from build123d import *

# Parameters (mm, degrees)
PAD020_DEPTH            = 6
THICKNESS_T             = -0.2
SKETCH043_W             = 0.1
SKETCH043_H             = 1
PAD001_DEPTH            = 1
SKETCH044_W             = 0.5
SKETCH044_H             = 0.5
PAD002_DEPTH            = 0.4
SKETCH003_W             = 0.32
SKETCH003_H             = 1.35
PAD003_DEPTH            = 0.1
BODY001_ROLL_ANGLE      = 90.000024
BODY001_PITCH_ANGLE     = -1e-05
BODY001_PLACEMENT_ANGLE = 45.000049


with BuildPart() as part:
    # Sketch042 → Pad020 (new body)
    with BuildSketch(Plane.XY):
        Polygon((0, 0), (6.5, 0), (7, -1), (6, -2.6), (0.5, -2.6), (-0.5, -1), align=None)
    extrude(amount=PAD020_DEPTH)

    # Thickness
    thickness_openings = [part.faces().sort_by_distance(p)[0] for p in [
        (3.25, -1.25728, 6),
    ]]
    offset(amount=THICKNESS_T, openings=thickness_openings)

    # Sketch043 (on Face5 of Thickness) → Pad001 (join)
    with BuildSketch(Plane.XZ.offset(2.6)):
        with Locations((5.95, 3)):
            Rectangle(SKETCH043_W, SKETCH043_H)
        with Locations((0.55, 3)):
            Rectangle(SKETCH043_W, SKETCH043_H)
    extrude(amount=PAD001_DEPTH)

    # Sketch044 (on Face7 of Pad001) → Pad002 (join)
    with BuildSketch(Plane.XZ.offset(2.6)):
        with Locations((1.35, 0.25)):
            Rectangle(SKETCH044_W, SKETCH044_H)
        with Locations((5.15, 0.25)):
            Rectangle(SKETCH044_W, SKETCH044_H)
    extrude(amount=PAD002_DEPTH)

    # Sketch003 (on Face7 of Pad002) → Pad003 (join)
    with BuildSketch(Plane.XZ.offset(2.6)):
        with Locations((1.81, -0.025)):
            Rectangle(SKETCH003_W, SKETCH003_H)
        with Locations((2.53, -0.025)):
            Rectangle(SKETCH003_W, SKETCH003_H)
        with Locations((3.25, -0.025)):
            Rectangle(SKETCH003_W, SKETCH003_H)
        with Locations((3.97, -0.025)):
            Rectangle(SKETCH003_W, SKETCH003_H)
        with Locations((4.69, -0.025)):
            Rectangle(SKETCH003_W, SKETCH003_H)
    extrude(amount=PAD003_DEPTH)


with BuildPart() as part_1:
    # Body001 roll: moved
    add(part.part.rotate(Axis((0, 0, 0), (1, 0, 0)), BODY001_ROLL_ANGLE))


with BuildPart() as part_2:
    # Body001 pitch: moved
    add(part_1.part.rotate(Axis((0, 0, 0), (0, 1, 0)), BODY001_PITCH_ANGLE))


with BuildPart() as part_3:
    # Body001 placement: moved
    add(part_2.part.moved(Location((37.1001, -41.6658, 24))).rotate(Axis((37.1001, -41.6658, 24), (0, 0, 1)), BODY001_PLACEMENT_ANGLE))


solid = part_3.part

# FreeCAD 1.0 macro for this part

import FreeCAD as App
import Part
import Sketcher
from FreeCAD import Vector


def faces_at(feature, points):
    """Names of the faces that lie closest to the given points."""
    faces = feature.Shape.Faces
    near = lambda p: min(range(len(faces)), key=lambda i: faces[i].distToShape(Part.Vertex(*p))[0])
    return sorted({f"Face{near(p) + 1}" for p in points})

doc = App.newDocument("Part")
body = doc.addObject("PartDesign::Body", "Body")

# Sketch on XY plane
sketch1 = body.newObject("Sketcher::SketchObject", "Sketch")
sketch1.AttachmentSupport = (doc.getObject("XY_Plane"), [""])
sketch1.MapMode = "FlatFace"
sketch1.addGeometry([
    Part.LineSegment(Vector(6.5, 0, 0), Vector(0, 0, 0)),  # 0
    Part.LineSegment(Vector(0, 0, 0), Vector(-0.5, -1, 0)),  # 1
    Part.LineSegment(Vector(-0.5, -1, 0), Vector(0.5, -2.6, 0)),  # 2
    Part.LineSegment(Vector(0.5, -2.6, 0), Vector(6, -2.6, 0)),  # 3
    Part.LineSegment(Vector(6, -2.6, 0), Vector(7, -1, 0)),  # 4
    Part.LineSegment(Vector(7, -1, 0), Vector(6.5, 0, 0)),  # 5
], False)
sketch1.addConstraint([
    Sketcher.Constraint("Coincident", 0, 2, 1, 1),
    Sketcher.Constraint("Coincident", 1, 2, 2, 1),
    Sketcher.Constraint("Coincident", 2, 2, 3, 1),
    Sketcher.Constraint("Coincident", 3, 2, 4, 1),
    Sketcher.Constraint("Coincident", 4, 2, 5, 1),
    Sketcher.Constraint("Coincident", 5, 2, 0, 1),
    Sketcher.Constraint("Horizontal", 0),
    Sketcher.Constraint("Horizontal", 3),
    Sketcher.Constraint("Coincident", 0, 2, -1, 1),
    Sketcher.Constraint("Horizontal", 1, 2, 4, 2),
    Sketcher.Constraint("Equal", 2, 4),
    Sketcher.Constraint("Equal", 1, 5),
    Sketcher.Constraint("DistanceX", 0, 2, 0, 1, 6.5),
    Sketcher.Constraint("DistanceX", 3, 1, 3, 2, 5.5),
    Sketcher.Constraint("DistanceY", 1, 2, -1, 1, 1.0),
    Sketcher.Constraint("DistanceX", -1, 1, 4, 2, 7.0),
    Sketcher.Constraint("DistanceY", 2, 2, -1, 1, 2.6),
])
pad1 = body.newObject("PartDesign::Pad", "Pad")
pad1.Profile = sketch1
pad1.Length = 6
doc.recompute()

thickness = body.newObject("PartDesign::Thickness", "Thickness")
thickness.Base = (pad1, faces_at(pad1, [(3.25, -1.3, 6)]))
thickness.Value = 0.2
thickness.Reversed = True
thickness.Join = "Arc"

# Sketch on XZ plane
sketch2 = body.newObject("Sketcher::SketchObject", "Sketch001")
sketch2.AttachmentSupport = (doc.getObject("XZ_Plane"), [""])
sketch2.MapMode = "FlatFace"
sketch2.AttachmentOffset = App.Placement(Vector(0, 0, 2.6), App.Rotation())
sketch2.addGeometry([
    Part.LineSegment(Vector(5.9, 3.5, 0), Vector(5.9, 2.5, 0)),  # 0
    Part.LineSegment(Vector(5.9, 2.5, 0), Vector(6, 2.5, 0)),  # 1
    Part.LineSegment(Vector(6, 2.5, 0), Vector(6, 3.5, 0)),  # 2
    Part.LineSegment(Vector(6, 3.5, 0), Vector(5.9, 3.5, 0)),  # 3
    Part.LineSegment(Vector(0.5, 3.5, 0), Vector(0.5, 2.5, 0)),  # 4
    Part.LineSegment(Vector(0.5, 2.5, 0), Vector(0.6, 2.5, 0)),  # 5
    Part.LineSegment(Vector(0.6, 2.5, 0), Vector(0.6, 3.5, 0)),  # 6
    Part.LineSegment(Vector(0.6, 3.5, 0), Vector(0.5, 3.5, 0)),  # 7
], False)
sketch2.addConstraint([
    Sketcher.Constraint("Coincident", 0, 2, 1, 1),
    Sketcher.Constraint("Coincident", 1, 2, 2, 1),
    Sketcher.Constraint("Coincident", 2, 2, 3, 1),
    Sketcher.Constraint("Coincident", 3, 2, 0, 1),
    Sketcher.Constraint("Coincident", 4, 2, 5, 1),
    Sketcher.Constraint("Coincident", 5, 2, 6, 1),
    Sketcher.Constraint("Coincident", 6, 2, 7, 1),
    Sketcher.Constraint("Coincident", 7, 2, 4, 1),
    Sketcher.Constraint("Vertical", 0),
    Sketcher.Constraint("Horizontal", 1),
    Sketcher.Constraint("Vertical", 2),
    Sketcher.Constraint("Horizontal", 3),
    Sketcher.Constraint("Vertical", 4),
    Sketcher.Constraint("Horizontal", 5),
    Sketcher.Constraint("Vertical", 6),
    Sketcher.Constraint("Horizontal", 7),
    Sketcher.Constraint("Horizontal", 1, 2, 4, 2),
    Sketcher.Constraint("Horizontal", 3, 2, 6, 2),
    Sketcher.Constraint("Equal", 3, 5),
    Sketcher.Constraint("DistanceY", 0, 2, 0, 1, 1.0),
    Sketcher.Constraint("DistanceX", 1, 1, 1, 2, 0.1),
    Sketcher.Constraint("DistanceX", -1, 1, 1, 2, 6.0),
    Sketcher.Constraint("DistanceY", -1, 1, 0, 2, 2.5),
    Sketcher.Constraint("DistanceX", -1, 1, 4, 2, 0.5),
])
pad2 = body.newObject("PartDesign::Pad", "Pad001")
pad2.Profile = sketch2
pad2.Length = 1

# Sketch on XZ plane
sketch3 = body.newObject("Sketcher::SketchObject", "Sketch002")
sketch3.AttachmentSupport = (doc.getObject("XZ_Plane"), [""])
sketch3.MapMode = "FlatFace"
sketch3.AttachmentOffset = App.Placement(Vector(0, 0, 2.6), App.Rotation())
sketch3.addGeometry([
    Part.LineSegment(Vector(1.1, 0.5, 0), Vector(1.1, 0, 0)),  # 0
    Part.LineSegment(Vector(1.1, 0, 0), Vector(1.6, 0, 0)),  # 1
    Part.LineSegment(Vector(1.6, 0, 0), Vector(1.6, 0.5, 0)),  # 2
    Part.LineSegment(Vector(1.6, 0.5, 0), Vector(1.1, 0.5, 0)),  # 3
    Part.LineSegment(Vector(4.9, 0.5, 0), Vector(4.9, 0, 0)),  # 4
    Part.LineSegment(Vector(4.9, 0, 0), Vector(5.4, 0, 0)),  # 5
    Part.LineSegment(Vector(5.4, 0, 0), Vector(5.4, 0.5, 0)),  # 6
    Part.LineSegment(Vector(5.4, 0.5, 0), Vector(4.9, 0.5, 0)),  # 7
], False)
sketch3.addConstraint([
    Sketcher.Constraint("Coincident", 0, 2, 1, 1),
    Sketcher.Constraint("Coincident", 1, 2, 2, 1),
    Sketcher.Constraint("Coincident", 2, 2, 3, 1),
    Sketcher.Constraint("Coincident", 3, 2, 0, 1),
    Sketcher.Constraint("Coincident", 4, 2, 5, 1),
    Sketcher.Constraint("Coincident", 5, 2, 6, 1),
    Sketcher.Constraint("Coincident", 6, 2, 7, 1),
    Sketcher.Constraint("Coincident", 7, 2, 4, 1),
    Sketcher.Constraint("Vertical", 0),
    Sketcher.Constraint("Horizontal", 1),
    Sketcher.Constraint("Vertical", 2),
    Sketcher.Constraint("Horizontal", 3),
    Sketcher.Constraint("Vertical", 4),
    Sketcher.Constraint("Horizontal", 5),
    Sketcher.Constraint("Vertical", 6),
    Sketcher.Constraint("Horizontal", 7),
    Sketcher.Constraint("PointOnObject", 0, 2, -1),
    Sketcher.Constraint("PointOnObject", 4, 2, -1),
    Sketcher.Constraint("Horizontal", 3, 2, 6, 2),
    Sketcher.Constraint("Equal", 3, 5),
    Sketcher.Constraint("Equal", 7, 0),
    Sketcher.Constraint("DistanceX", 1, 1, 1, 2, 0.5),
    Sketcher.Constraint("DistanceX", -1, 1, 0, 2, 1.1),
    Sketcher.Constraint("DistanceX", -1, 1, 4, 2, 4.9),
])
pad3 = body.newObject("PartDesign::Pad", "Pad002")
pad3.Profile = sketch3
pad3.Length = 0.4

# Sketch on XZ plane
sketch4 = body.newObject("Sketcher::SketchObject", "Sketch003")
sketch4.AttachmentSupport = (doc.getObject("XZ_Plane"), [""])
sketch4.MapMode = "FlatFace"
sketch4.AttachmentOffset = App.Placement(Vector(0, 0, 2.6), App.Rotation())
sketch4.addGeometry([
    Part.LineSegment(Vector(1.65, 0.65, 0), Vector(1.65, -0.7, 0)),  # 0
    Part.LineSegment(Vector(1.65, -0.7, 0), Vector(1.97, -0.7, 0)),  # 1
    Part.LineSegment(Vector(1.97, -0.7, 0), Vector(1.97, 0.65, 0)),  # 2
    Part.LineSegment(Vector(1.97, 0.65, 0), Vector(1.65, 0.65, 0)),  # 3
    Part.LineSegment(Vector(2.37, 0.65, 0), Vector(2.37, -0.7, 0)),  # 4
    Part.LineSegment(Vector(2.37, -0.7, 0), Vector(2.69, -0.7, 0)),  # 5
    Part.LineSegment(Vector(2.69, -0.7, 0), Vector(2.69, 0.65, 0)),  # 6
    Part.LineSegment(Vector(2.69, 0.65, 0), Vector(2.37, 0.65, 0)),  # 7
    Part.LineSegment(Vector(3.09, 0.65, 0), Vector(3.09, -0.7, 0)),  # 8
    Part.LineSegment(Vector(3.09, -0.7, 0), Vector(3.41, -0.7, 0)),  # 9
    Part.LineSegment(Vector(3.41, -0.7, 0), Vector(3.41, 0.65, 0)),  # 10
    Part.LineSegment(Vector(3.41, 0.65, 0), Vector(3.09, 0.65, 0)),  # 11
    Part.LineSegment(Vector(3.81, 0.65, 0), Vector(3.81, -0.7, 0)),  # 12
    Part.LineSegment(Vector(3.81, -0.7, 0), Vector(4.13, -0.7, 0)),  # 13
    Part.LineSegment(Vector(4.13, -0.7, 0), Vector(4.13, 0.65, 0)),  # 14
    Part.LineSegment(Vector(4.13, 0.65, 0), Vector(3.81, 0.65, 0)),  # 15
    Part.LineSegment(Vector(4.53, 0.65, 0), Vector(4.53, -0.7, 0)),  # 16
    Part.LineSegment(Vector(4.53, -0.7, 0), Vector(4.85, -0.7, 0)),  # 17
    Part.LineSegment(Vector(4.85, -0.7, 0), Vector(4.85, 0.65, 0)),  # 18
    Part.LineSegment(Vector(4.85, 0.65, 0), Vector(4.53, 0.65, 0)),  # 19
], False)
sketch4.addConstraint([
    Sketcher.Constraint("Coincident", 0, 2, 1, 1),
    Sketcher.Constraint("Coincident", 1, 2, 2, 1),
    Sketcher.Constraint("Coincident", 2, 2, 3, 1),
    Sketcher.Constraint("Coincident", 3, 2, 0, 1),
    Sketcher.Constraint("Coincident", 4, 2, 5, 1),
    Sketcher.Constraint("Coincident", 5, 2, 6, 1),
    Sketcher.Constraint("Coincident", 6, 2, 7, 1),
    Sketcher.Constraint("Coincident", 7, 2, 4, 1),
    Sketcher.Constraint("Coincident", 8, 2, 9, 1),
    Sketcher.Constraint("Coincident", 9, 2, 10, 1),
    Sketcher.Constraint("Coincident", 10, 2, 11, 1),
    Sketcher.Constraint("Coincident", 11, 2, 8, 1),
    Sketcher.Constraint("Coincident", 12, 2, 13, 1),
    Sketcher.Constraint("Coincident", 13, 2, 14, 1),
    Sketcher.Constraint("Coincident", 14, 2, 15, 1),
    Sketcher.Constraint("Coincident", 15, 2, 12, 1),
    Sketcher.Constraint("Coincident", 16, 2, 17, 1),
    Sketcher.Constraint("Coincident", 17, 2, 18, 1),
    Sketcher.Constraint("Coincident", 18, 2, 19, 1),
    Sketcher.Constraint("Coincident", 19, 2, 16, 1),
    Sketcher.Constraint("Vertical", 0),
    Sketcher.Constraint("Horizontal", 1),
    Sketcher.Constraint("Vertical", 2),
    Sketcher.Constraint("Horizontal", 3),
    Sketcher.Constraint("Vertical", 4),
    Sketcher.Constraint("Horizontal", 5),
    Sketcher.Constraint("Vertical", 6),
    Sketcher.Constraint("Horizontal", 7),
    Sketcher.Constraint("Vertical", 8),
    Sketcher.Constraint("Horizontal", 9),
    Sketcher.Constraint("Vertical", 10),
    Sketcher.Constraint("Horizontal", 11),
    Sketcher.Constraint("Vertical", 12),
    Sketcher.Constraint("Horizontal", 13),
    Sketcher.Constraint("Vertical", 14),
    Sketcher.Constraint("Horizontal", 15),
    Sketcher.Constraint("Vertical", 16),
    Sketcher.Constraint("Horizontal", 17),
    Sketcher.Constraint("Vertical", 18),
    Sketcher.Constraint("Horizontal", 19),
    Sketcher.Constraint("Horizontal", 1, 2, 4, 2),
    Sketcher.Constraint("Horizontal", 3, 2, 6, 2),
    Sketcher.Constraint("Horizontal", 5, 2, 8, 2),
    Sketcher.Constraint("Horizontal", 7, 2, 10, 2),
    Sketcher.Constraint("Horizontal", 9, 2, 12, 2),
    Sketcher.Constraint("Horizontal", 11, 2, 14, 2),
    Sketcher.Constraint("Horizontal", 13, 2, 16, 2),
    Sketcher.Constraint("Horizontal", 15, 2, 18, 2),
    Sketcher.Constraint("Equal", 3, 5),
    Sketcher.Constraint("Equal", 7, 9),
    Sketcher.Constraint("Equal", 11, 13),
    Sketcher.Constraint("Equal", 15, 17),
    Sketcher.Constraint("DistanceX", 1, 1, 1, 2, 0.32),
    Sketcher.Constraint("DistanceY", 0, 2, 0, 1, 1.35),
    Sketcher.Constraint("DistanceY", 0, 2, -1, 1, 0.7),
    Sketcher.Constraint("DistanceX", 1, 2, 4, 2, 0.4),
    Sketcher.Constraint("DistanceX", 5, 2, 8, 2, 0.4),
    Sketcher.Constraint("DistanceX", 9, 2, 12, 2, 0.4),
    Sketcher.Constraint("DistanceX", 13, 2, 16, 2, 0.4),
    Sketcher.Constraint("DistanceX", -1, 1, 0, 2, 1.65),
])
pad4 = body.newObject("PartDesign::Pad", "Pad003")
pad4.Profile = sketch4
pad4.Length = 0.1
body2 = doc.addObject("PartDesign::Body", "Body001")
doc.recompute()

body.Placement = App.Placement(Vector(0, 0, 0), App.Rotation(Vector(1, 0, 0), 90.000024))
boolean = body2.newObject("PartDesign::Boolean", "Boolean")
boolean.Type = "Fuse"
boolean.addObjects([body])
body3 = doc.addObject("PartDesign::Body", "Body002")
doc.recompute()

body2.Placement = App.Placement(Vector(0, 0, 0), App.Rotation(Vector(0, 1, 0), 359.99999))
boolean2 = body3.newObject("PartDesign::Boolean", "Boolean001")
boolean2.Type = "Fuse"
boolean2.addObjects([body2])
body4 = doc.addObject("PartDesign::Body", "Body003")
doc.recompute()

body3.Placement = App.Placement(Vector(37.1001, -41.6658, 24), App.Rotation(Vector(0, 0, 1), 45.000049))
boolean3 = body4.newObject("PartDesign::Boolean", "Boolean002")
boolean3.Type = "Fuse"
boolean3.addObjects([body3])

doc.recompute()
